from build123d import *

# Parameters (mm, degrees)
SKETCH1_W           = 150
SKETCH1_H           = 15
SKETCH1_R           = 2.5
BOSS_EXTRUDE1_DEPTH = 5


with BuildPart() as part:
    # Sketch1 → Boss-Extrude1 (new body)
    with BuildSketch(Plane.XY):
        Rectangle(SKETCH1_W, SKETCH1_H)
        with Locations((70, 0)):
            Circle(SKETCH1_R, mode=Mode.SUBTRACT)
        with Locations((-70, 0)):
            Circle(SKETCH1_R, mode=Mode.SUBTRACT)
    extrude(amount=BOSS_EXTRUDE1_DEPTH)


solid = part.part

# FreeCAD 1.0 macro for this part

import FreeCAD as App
import Part
import Sketcher
from FreeCAD import Vector

doc = App.newDocument("Part")
body = doc.addObject("PartDesign::Body", "Body")

# Sketch on XY plane
sketch1 = body.newObject("Sketcher::SketchObject", "Sketch")
sketch1.AttachmentSupport = (doc.getObject("XY_Plane"), [""])
sketch1.MapMode = "FlatFace"
sketch1.addGeometry([
    Part.LineSegment(Vector(-75, 7.5, 0), Vector(-75, -7.5, 0)),  # 0
    Part.LineSegment(Vector(-75, -7.5, 0), Vector(75, -7.5, 0)),  # 1
    Part.LineSegment(Vector(75, -7.5, 0), Vector(75, 7.5, 0)),  # 2
    Part.LineSegment(Vector(75, 7.5, 0), Vector(-75, 7.5, 0)),  # 3
    Part.Circle(Vector(-70, 0, 0), Vector(0, 0, 1), 2.5),  # 4
    Part.Circle(Vector(70, 0, 0), Vector(0, 0, 1), 2.5),  # 5
], False)
sketch1.addConstraint([
    Sketcher.Constraint("Coincident", 0, 2, 1, 1),
    Sketcher.Constraint("Coincident", 1, 2, 2, 1),
    Sketcher.Constraint("Coincident", 2, 2, 3, 1),
    Sketcher.Constraint("Coincident", 3, 2, 0, 1),
    Sketcher.Constraint("Vertical", 0),
    Sketcher.Constraint("Horizontal", 1),
    Sketcher.Constraint("Vertical", 2),
    Sketcher.Constraint("Horizontal", 3),
    Sketcher.Constraint("Equal", 4, 5),
    Sketcher.Constraint("Symmetric", 4, 3, 5, 3, -1, 1),
    Sketcher.Constraint("Symmetric", 0, 2, 2, 2, -1, 1),
    Sketcher.Constraint("PointOnObject", 4, 3, -1),
    Sketcher.Constraint("Diameter", 4, 5.0),
    Sketcher.Constraint("DistanceX", 1, 1, 1, 2, 150.0),
    Sketcher.Constraint("DistanceY", 0, 2, 0, 1, 15.0),
    Sketcher.Constraint("DistanceX", 4, 3, -1, 1, 70.0),
])
pad1 = body.newObject("PartDesign::Pad", "Pad")
pad1.Profile = sketch1
pad1.Length = 5

doc.recompute()
